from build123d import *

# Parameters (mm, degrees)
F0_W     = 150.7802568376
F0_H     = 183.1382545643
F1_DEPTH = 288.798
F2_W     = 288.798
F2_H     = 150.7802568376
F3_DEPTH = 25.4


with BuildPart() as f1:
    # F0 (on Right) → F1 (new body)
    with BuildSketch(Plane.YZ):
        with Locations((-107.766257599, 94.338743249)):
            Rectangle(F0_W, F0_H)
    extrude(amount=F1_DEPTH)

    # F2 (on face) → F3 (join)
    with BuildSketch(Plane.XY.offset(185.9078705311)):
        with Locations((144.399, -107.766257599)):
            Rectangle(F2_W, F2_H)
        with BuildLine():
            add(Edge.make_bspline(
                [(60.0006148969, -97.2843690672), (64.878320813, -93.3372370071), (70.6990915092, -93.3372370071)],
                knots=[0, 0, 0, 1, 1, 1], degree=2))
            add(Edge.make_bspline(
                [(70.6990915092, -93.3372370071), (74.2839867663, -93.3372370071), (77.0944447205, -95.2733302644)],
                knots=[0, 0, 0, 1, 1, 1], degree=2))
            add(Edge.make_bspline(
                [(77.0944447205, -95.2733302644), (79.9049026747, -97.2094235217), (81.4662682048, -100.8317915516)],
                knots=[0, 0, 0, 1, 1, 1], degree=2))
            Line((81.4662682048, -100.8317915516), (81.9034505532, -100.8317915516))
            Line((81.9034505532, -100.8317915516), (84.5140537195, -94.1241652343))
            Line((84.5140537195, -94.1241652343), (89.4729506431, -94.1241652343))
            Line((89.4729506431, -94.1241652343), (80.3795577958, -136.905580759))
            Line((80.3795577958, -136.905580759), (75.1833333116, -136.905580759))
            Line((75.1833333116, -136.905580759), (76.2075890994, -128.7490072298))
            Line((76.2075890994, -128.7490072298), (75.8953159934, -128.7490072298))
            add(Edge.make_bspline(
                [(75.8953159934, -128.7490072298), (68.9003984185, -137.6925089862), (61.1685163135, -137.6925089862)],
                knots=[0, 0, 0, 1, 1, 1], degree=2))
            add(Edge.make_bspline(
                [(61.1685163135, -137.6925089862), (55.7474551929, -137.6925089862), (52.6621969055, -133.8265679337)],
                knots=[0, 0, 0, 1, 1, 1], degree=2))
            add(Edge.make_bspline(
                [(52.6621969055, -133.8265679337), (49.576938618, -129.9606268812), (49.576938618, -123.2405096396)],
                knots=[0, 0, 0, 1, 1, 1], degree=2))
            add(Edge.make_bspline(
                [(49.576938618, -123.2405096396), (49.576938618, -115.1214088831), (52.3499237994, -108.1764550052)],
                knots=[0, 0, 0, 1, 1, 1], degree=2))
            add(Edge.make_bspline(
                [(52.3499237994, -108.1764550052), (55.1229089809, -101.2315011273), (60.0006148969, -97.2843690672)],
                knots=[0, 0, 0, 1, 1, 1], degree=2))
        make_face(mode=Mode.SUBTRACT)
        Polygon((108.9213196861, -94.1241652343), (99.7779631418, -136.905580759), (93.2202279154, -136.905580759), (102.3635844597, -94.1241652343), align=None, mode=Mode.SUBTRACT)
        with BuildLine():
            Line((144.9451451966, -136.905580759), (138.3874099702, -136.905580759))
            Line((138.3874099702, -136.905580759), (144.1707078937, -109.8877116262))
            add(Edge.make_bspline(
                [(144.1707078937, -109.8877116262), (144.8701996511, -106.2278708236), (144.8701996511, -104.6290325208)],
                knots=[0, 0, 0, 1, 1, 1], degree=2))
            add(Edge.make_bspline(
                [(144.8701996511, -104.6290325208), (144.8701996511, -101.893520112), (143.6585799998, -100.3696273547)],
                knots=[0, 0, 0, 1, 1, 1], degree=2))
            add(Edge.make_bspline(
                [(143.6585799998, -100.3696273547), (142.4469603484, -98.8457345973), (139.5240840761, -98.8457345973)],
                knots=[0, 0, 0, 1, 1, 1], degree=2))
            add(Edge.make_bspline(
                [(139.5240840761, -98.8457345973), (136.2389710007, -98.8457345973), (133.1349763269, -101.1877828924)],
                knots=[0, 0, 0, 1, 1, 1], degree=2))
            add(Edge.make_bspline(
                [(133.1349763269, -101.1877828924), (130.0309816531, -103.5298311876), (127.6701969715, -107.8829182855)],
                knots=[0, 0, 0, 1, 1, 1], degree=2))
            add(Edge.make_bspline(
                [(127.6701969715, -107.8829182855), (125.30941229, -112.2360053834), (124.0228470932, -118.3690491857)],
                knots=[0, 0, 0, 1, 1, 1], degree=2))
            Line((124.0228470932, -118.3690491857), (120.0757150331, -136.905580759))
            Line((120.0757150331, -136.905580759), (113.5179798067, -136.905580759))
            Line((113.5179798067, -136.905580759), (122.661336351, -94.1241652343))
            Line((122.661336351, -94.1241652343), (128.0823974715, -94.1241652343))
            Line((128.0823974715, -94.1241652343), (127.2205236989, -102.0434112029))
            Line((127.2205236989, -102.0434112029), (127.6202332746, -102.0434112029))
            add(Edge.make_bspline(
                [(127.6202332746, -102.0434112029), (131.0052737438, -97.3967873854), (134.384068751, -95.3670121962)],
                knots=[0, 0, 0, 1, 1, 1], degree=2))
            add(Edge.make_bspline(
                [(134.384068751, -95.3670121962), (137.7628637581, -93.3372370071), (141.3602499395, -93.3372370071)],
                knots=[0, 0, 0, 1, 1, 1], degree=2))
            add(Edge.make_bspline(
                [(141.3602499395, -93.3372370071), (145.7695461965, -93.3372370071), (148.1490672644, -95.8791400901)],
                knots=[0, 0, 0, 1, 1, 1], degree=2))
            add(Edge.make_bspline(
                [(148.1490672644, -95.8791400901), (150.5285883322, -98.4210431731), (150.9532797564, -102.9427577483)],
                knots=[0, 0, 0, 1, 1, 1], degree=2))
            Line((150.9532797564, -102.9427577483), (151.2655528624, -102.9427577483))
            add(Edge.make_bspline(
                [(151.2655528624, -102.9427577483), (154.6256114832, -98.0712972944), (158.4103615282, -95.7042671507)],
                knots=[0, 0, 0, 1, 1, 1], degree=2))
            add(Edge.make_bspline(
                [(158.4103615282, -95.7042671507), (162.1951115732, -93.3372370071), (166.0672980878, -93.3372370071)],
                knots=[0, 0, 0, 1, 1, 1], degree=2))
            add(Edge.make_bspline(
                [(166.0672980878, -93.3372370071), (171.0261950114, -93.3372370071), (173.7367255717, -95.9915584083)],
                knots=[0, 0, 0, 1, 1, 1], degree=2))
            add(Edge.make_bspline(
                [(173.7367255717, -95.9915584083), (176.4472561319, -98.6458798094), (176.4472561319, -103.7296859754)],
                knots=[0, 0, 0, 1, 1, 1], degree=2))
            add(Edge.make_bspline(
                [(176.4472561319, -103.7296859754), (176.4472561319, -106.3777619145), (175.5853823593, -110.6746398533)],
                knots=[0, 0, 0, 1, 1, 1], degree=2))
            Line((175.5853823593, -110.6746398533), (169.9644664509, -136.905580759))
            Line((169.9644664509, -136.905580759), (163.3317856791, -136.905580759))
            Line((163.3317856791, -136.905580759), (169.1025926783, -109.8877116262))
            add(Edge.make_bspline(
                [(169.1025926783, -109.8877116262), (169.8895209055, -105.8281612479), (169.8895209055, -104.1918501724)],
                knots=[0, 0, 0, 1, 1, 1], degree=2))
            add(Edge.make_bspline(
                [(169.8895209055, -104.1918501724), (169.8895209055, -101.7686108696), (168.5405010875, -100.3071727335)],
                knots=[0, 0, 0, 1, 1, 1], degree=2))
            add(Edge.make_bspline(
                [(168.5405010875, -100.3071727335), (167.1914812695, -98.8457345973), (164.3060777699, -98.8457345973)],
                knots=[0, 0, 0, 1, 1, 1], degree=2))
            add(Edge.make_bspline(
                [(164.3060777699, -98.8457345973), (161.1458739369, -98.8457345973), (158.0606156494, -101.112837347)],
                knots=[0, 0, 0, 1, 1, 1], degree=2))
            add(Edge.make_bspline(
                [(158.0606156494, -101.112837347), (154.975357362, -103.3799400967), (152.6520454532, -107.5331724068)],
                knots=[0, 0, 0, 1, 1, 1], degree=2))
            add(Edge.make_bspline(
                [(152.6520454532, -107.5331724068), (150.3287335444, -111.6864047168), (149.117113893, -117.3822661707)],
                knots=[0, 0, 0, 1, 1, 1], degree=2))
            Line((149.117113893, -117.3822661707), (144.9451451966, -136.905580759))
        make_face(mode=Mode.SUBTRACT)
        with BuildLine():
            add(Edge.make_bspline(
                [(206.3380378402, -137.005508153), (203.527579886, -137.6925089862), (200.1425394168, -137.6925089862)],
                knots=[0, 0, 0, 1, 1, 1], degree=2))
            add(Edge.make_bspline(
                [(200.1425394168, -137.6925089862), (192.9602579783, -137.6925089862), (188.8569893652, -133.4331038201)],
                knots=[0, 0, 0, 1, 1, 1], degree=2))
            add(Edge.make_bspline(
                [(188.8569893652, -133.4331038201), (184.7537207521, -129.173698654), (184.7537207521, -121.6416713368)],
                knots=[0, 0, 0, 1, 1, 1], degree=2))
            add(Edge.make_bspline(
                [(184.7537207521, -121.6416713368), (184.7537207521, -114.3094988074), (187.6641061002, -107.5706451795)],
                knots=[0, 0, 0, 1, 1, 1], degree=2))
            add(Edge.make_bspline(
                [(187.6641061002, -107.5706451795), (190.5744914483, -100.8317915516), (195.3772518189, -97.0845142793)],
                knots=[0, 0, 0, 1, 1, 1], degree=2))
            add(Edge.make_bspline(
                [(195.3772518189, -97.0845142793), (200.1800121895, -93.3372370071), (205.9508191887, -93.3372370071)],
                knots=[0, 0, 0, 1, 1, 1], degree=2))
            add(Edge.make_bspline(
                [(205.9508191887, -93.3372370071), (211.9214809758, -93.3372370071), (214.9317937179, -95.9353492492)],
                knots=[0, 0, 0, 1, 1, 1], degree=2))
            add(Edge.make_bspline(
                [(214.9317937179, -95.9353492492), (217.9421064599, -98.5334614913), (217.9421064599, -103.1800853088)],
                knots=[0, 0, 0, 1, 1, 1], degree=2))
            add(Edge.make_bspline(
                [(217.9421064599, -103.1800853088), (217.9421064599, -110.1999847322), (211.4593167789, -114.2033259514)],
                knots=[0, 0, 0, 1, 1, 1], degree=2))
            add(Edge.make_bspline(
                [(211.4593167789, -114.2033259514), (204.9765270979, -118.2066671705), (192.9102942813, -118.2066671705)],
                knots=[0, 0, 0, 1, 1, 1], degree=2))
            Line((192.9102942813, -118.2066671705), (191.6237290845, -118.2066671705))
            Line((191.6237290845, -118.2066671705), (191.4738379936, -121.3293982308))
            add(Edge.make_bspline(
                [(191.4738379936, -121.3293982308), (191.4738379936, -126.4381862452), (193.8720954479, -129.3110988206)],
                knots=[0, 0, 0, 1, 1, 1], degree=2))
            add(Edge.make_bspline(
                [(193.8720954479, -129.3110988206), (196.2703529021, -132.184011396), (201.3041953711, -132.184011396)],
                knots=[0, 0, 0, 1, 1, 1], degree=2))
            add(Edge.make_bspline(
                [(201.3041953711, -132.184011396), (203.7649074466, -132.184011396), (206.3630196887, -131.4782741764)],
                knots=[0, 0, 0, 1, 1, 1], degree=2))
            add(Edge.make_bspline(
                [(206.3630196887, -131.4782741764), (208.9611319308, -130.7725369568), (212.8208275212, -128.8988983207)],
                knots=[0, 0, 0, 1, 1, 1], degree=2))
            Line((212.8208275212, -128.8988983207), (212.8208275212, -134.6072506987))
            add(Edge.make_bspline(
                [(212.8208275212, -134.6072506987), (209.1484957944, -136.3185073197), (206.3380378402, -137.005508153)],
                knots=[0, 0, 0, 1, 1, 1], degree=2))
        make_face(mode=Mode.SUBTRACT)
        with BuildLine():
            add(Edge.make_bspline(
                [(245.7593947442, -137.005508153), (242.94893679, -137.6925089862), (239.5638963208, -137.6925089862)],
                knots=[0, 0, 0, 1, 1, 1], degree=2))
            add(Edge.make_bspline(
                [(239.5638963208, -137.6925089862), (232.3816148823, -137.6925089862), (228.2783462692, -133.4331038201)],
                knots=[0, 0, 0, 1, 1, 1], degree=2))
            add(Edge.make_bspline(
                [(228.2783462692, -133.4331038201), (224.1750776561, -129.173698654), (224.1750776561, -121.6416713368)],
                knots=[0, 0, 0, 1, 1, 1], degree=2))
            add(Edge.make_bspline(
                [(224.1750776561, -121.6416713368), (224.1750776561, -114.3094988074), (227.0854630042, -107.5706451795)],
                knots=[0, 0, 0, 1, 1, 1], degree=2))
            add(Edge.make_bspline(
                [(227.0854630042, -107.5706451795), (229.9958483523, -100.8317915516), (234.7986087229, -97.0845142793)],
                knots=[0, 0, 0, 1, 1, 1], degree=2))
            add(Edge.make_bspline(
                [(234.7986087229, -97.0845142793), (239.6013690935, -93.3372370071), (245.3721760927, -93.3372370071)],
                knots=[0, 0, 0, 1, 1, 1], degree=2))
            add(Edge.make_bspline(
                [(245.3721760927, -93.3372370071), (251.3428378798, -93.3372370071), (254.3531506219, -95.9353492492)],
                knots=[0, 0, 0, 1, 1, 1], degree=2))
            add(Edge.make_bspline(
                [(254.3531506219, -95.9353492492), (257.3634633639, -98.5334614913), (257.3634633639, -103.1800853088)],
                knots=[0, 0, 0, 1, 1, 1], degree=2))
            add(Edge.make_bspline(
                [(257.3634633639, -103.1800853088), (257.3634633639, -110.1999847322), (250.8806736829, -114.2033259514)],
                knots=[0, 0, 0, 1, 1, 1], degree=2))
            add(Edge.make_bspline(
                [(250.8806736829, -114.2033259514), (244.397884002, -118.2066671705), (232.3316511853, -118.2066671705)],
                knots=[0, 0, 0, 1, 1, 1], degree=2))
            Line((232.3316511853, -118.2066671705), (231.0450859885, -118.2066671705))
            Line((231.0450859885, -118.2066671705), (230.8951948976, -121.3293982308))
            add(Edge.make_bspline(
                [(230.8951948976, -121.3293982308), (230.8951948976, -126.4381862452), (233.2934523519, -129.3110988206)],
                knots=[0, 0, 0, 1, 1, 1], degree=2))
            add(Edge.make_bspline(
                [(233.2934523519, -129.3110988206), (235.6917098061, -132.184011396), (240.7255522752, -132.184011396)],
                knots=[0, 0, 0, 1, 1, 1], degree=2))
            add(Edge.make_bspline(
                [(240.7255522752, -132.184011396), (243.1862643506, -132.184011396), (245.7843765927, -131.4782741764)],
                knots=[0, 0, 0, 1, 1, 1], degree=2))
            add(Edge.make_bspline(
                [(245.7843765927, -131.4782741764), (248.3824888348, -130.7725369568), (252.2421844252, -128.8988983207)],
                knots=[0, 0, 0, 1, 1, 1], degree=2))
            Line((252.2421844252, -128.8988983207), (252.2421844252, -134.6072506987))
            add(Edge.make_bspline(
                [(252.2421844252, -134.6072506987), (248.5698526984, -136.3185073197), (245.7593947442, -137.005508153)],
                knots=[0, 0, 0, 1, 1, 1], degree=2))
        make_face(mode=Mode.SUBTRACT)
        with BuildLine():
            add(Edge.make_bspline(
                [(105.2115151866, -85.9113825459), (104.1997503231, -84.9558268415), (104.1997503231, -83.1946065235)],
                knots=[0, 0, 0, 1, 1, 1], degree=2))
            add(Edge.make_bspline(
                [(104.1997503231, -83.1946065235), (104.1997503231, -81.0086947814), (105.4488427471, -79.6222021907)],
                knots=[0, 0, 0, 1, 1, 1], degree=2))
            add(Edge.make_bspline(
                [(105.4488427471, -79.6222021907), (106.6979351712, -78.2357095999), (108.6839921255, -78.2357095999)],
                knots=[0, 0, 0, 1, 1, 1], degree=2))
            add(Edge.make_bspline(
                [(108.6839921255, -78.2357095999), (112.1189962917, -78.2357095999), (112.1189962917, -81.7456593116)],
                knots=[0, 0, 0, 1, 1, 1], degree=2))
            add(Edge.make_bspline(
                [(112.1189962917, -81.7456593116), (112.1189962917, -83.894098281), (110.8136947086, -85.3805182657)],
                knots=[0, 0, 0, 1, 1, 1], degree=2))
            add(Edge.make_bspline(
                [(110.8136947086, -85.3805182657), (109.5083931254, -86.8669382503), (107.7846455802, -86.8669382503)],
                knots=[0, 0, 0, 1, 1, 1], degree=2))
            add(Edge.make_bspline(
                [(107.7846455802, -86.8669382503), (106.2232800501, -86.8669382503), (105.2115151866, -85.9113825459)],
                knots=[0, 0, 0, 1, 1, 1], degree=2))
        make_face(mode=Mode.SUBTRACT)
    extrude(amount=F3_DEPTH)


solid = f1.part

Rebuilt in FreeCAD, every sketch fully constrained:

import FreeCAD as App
import Part
import Sketcher

V = App.Vector
Q = App.Units.Quantity

doc = App.newDocument("Part")
body = doc.addObject("PartDesign::Body", "Body")

# Sketch on YZ plane
sketch1 = body.newObject("Sketcher::SketchObject", "Sketch")
sketch1.AttachmentSupport = (doc.getObject("YZ_Plane"), [""])
sketch1.MapMode = "FlatFace"
sketch1.addGeometry([
    Part.LineSegment(V(-183, 186, 0), V(-183, 3, 0)),
    Part.LineSegment(V(-183, 3, 0), V(-32, 3, 0)),
    Part.LineSegment(V(-32, 3, 0), V(-32, 186, 0)),
    Part.LineSegment(V(-32, 186, 0), V(-183, 186, 0)),
], False)
sketch1.addConstraint([
    Sketcher.Constraint("Coincident", 0, 2, 1, 1),
    Sketcher.Constraint("Coincident", 1, 2, 2, 1),
    Sketcher.Constraint("Coincident", 2, 2, 3, 1),
    Sketcher.Constraint("Coincident", 3, 2, 0, 1),
    Sketcher.Constraint("Vertical", 0),
    Sketcher.Constraint("Horizontal", 1),
    Sketcher.Constraint("Vertical", 2),
    Sketcher.Constraint("Horizontal", 3),
    Sketcher.Constraint("DistanceX", 1, 1, 1, 2, Q("150.780257 mm")),
    Sketcher.Constraint("DistanceY", 0, 2, 0, 1, Q("183.138255 mm")),
    Sketcher.Constraint("DistanceX", 1, 2, -1, 1, Q("32.376129 mm")),
    Sketcher.Constraint("DistanceY", -1, 1, 2, 2, Q("185.907871 mm")),
])
pad1 = body.newObject("PartDesign::Pad", "Pad")
pad1.Profile = sketch1
pad1.Length = Q("11.37 in")

# Sketch on XY plane
sketch2 = body.newObject("Sketcher::SketchObject", "Sketch001")
sketch2.AttachmentSupport = (doc.getObject("XY_Plane"), [""])
sketch2.MapMode = "FlatFace"
sketch2.AttachmentOffset = App.Placement(V(0, 0, 185.907871), App.Rotation())
sketch2.addGeometry([
    Part.LineSegment(V(0, -32.376129, 0), V(0, -183.156386, 0)),  # 0
    Part.LineSegment(V(0, -183.156386, 0), V(288.798, -183.156386, 0)),  # 1
    Part.LineSegment(V(288.798, -183.156386, 0), V(288.798, -32.376129, 0)),  # 2
    Part.LineSegment(V(288.798, -32.376129, 0), V(0, -32.376129, 0)),  # 3
    Part.BSplineCurve([V(52.349924, -108.176455, 0), V(55.122909, -101.231501, 0), V(60.000615, -97.284369, 0)], [3, 3], [0, 1], False, 2, [1, 1, 1], False),  # 4
    Part.BSplineCurve([V(60.000615, -97.284369, 0), V(64.878321, -93.337237, 0), V(74.283987, -93.337237, 0), V(79.904903, -97.209424, 0), V(81.466268, -100.831792, 0)], [3, 1, 1, 3], [0, 1, 1.615879828, 2.231759657], False, 2, [1, 1, 1, 1, 1], False),  # 5
    Part.LineSegment(V(81.466268, -100.831792, 0), V(81.903451, -100.831792, 0)),  # 6
    Part.LineSegment(V(81.903451, -100.831792, 0), V(84.514054, -94.124165, 0)),  # 7
    Part.LineSegment(V(84.514054, -94.124165, 0), V(89.472951, -94.124165, 0)),  # 8
    Part.LineSegment(V(89.472951, -94.124165, 0), V(80.379558, -136.905581, 0)),  # 9
    Part.LineSegment(V(80.379558, -136.905581, 0), V(75.183333, -136.905581, 0)),  # 10
    Part.LineSegment(V(75.183333, -136.905581, 0), V(76.207589, -128.749007, 0)),  # 11
    Part.LineSegment(V(76.207589, -128.749007, 0), V(75.895316, -128.749007, 0)),  # 12
    Part.BSplineCurve([V(75.895316, -128.749007, 0), V(68.900398, -137.692509, 0), V(55.747455, -137.692509, 0), V(52.662197, -133.826568, 0)], [3, 1, 3], [0, 1, 1.701130856], False, 2, [1, 1, 1, 1], False),  # 13
    Part.BSplineCurve([V(52.662197, -133.826568, 0), V(49.576939, -129.960627, 0), V(49.576939, -115.121409, 0), V(52.349924, -108.176455, 0)], [3, 1, 3], [0, 1, 2.208178439], False, 2, [1, 1, 1, 1], False),  # 14
    Part.LineSegment(V(102.363584, -94.124165, 0), V(108.92132, -94.124165, 0)),  # 15
    Part.LineSegment(V(108.92132, -94.124165, 0), V(99.777963, -136.905581, 0)),  # 16
    Part.LineSegment(V(99.777963, -136.905581, 0), V(93.220228, -136.905581, 0)),  # 17
    Part.LineSegment(V(93.220228, -136.905581, 0), V(102.363584, -94.124165, 0)),  # 18
    Part.LineSegment(V(149.117114, -117.382266, 0), V(144.945145, -136.905581, 0)),  # 19
    Part.LineSegment(V(144.945145, -136.905581, 0), V(138.38741, -136.905581, 0)),  # 20
    Part.LineSegment(V(138.38741, -136.905581, 0), V(144.170708, -109.887712, 0)),  # 21
    Part.BSplineCurve([V(144.170708, -109.887712, 0), V(144.8702, -106.227871, 0), V(144.8702, -101.89352, 0), V(143.65858, -100.369627, 0)], [3, 1, 3], [0, 1, 2.7109375], False, 2, [1, 1, 1, 1], False),  # 22
    Part.BSplineCurve([V(143.65858, -100.369627, 0), V(142.44696, -98.845735, 0), V(136.238971, -98.845735, 0), V(133.134976, -101.187783, 0)], [3, 1, 3], [0, 1, 2.123931624], False, 2, [1, 1, 1, 1], False),  # 23
    Part.BSplineCurve([V(133.134976, -101.187783, 0), V(130.030982, -103.529831, 0), V(127.670197, -107.882918, 0)], [3, 3], [0, 1], False, 2, [1, 1, 1], False),  # 24
    Part.BSplineCurve([V(127.670197, -107.882918, 0), V(125.309412, -112.236005, 0), V(124.022847, -118.369049, 0)], [3, 3], [0, 1], False, 2, [1, 1, 1], False),  # 25
    Part.LineSegment(V(124.022847, -118.369049, 0), V(120.075715, -136.905581, 0)),  # 26
    Part.LineSegment(V(120.075715, -136.905581, 0), V(113.51798, -136.905581, 0)),  # 27
    Part.LineSegment(V(113.51798, -136.905581, 0), V(122.661336, -94.124165, 0)),  # 28
    Part.LineSegment(V(122.661336, -94.124165, 0), V(128.082397, -94.124165, 0)),  # 29
    Part.LineSegment(V(128.082397, -94.124165, 0), V(127.220524, -102.043411, 0)),  # 30
    Part.LineSegment(V(127.220524, -102.043411, 0), V(127.620233, -102.043411, 0)),  # 31
    Part.BSplineCurve([V(127.620233, -102.043411, 0), V(131.005274, -97.396787, 0), V(134.384069, -95.367012, 0)], [3, 3], [0, 1], False, 2, [1, 1, 1], False),  # 32
    Part.BSplineCurve([V(134.384069, -95.367012, 0), V(137.762864, -93.337237, 0), V(145.769546, -93.337237, 0), V(148.149067, -95.87914, 0)], [3, 1, 3], [0, 1, 2.225694444], False, 2, [1, 1, 1, 1], False),  # 33
    Part.BSplineCurve([V(148.149067, -95.87914, 0), V(150.528588, -98.421043, 0), V(150.95328, -102.942758, 0)], [3, 3], [0, 1], False, 2, [1, 1, 1], False),  # 34
    Part.LineSegment(V(150.95328, -102.942758, 0), V(151.265553, -102.942758, 0)),  # 35
    Part.BSplineCurve([V(151.265553, -102.942758, 0), V(154.625611, -98.071297, 0), V(158.410362, -95.704267, 0)], [3, 3], [0, 1], False, 2, [1, 1, 1], False),  # 36
    Part.BSplineCurve([V(158.410362, -95.704267, 0), V(162.195112, -93.337237, 0), V(171.026195, -93.337237, 0), V(176.447256, -98.64588, 0), V(176.447256, -106.377762, 0), V(175.585382, -110.67464, 0)], [3, 1, 1, 1, 3], [0, 1, 2.280645161, 3.561290323, 4.228358564], False, 2, [1, 1, 1, 1, 1, 1], False),  # 37
    Part.LineSegment(V(175.585382, -110.67464, 0), V(169.964466, -136.905581, 0)),  # 38
    Part.LineSegment(V(169.964466, -136.905581, 0), V(163.331786, -136.905581, 0)),  # 39
    Part.LineSegment(V(163.331786, -136.905581, 0), V(169.102593, -109.887712, 0)),  # 40
    Part.BSplineCurve([V(169.102593, -109.887712, 0), V(169.889521, -105.828161, 0), V(169.889521, -101.768611, 0), V(168.540501, -100.307173, 0)], [3, 1, 3], [0, 1, 2.480916031], False, 2, [1, 1, 1, 1], False),  # 41
    Part.BSplineCurve([V(168.540501, -100.307173, 0), V(167.191481, -98.845735, 0), V(161.145874, -98.845735, 0), V(158.060616, -101.112837, 0)], [3, 1, 3], [0, 1, 2.095238095], False, 2, [1, 1, 1, 1], False),  # 42
    Part.BSplineCurve([V(158.060616, -101.112837, 0), V(154.975357, -103.37994, 0), V(152.652045, -107.533172, 0)], [3, 3], [0, 1], False, 2, [1, 1, 1], False),  # 43
    Part.BSplineCurve([V(152.652045, -107.533172, 0), V(150.328734, -111.686405, 0), V(149.117114, -117.382266, 0)], [3, 3], [0, 1], False, 2, [1, 1, 1], False),  # 44
    Part.BSplineCurve([V(212.820828, -134.607251, 0), V(209.148496, -136.318507, 0), V(206.338038, -137.005508, 0)], [3, 3], [0, 1], False, 2, [1, 1, 1], False),  # 45
    Part.BSplineCurve([V(206.338038, -137.005508, 0), V(203.52758, -137.692509, 0), V(192.960258, -137.692509, 0), V(184.753721, -129.173699, 0), V(184.753721, -114.309499, 0), V(190.574491, -100.831792, 0), V(195.377252, -97.084514, 0)], [3, 1, 1, 1, 1, 3], [0, 1, 3.121771218, 5.243542436, 7.309014583, 9.37448673], False, 2, [1, 1, 1, 1, 1, 1, 1], False),  # 46
    Part.BSplineCurve([V(195.377252, -97.084514, 0), V(200.180012, -93.337237, 0), V(211.921481, -93.337237, 0), V(214.931794, -95.935349, 0)], [3, 1, 3], [0, 1, 2.034632035], False, 2, [1, 1, 1, 1], False),  # 47
    Part.BSplineCurve([V(214.931794, -95.935349, 0), V(217.942106, -98.533461, 0), V(217.942106, -110.199985, 0), V(211.459317, -114.203326, 0)], [3, 1, 3], [0, 1, 2.510752688], False, 2, [1, 1, 1, 1], False),  # 48
    Part.BSplineCurve([V(211.459317, -114.203326, 0), V(204.976527, -118.206667, 0), V(192.910294, -118.206667, 0)], [3, 3], [0, 1], False, 2, [1, 1, 1], False),  # 49
    Part.LineSegment(V(192.910294, -118.206667, 0), V(191.623729, -118.206667, 0)),  # 50
    Part.LineSegment(V(191.623729, -118.206667, 0), V(191.473838, -121.329398, 0)),  # 51
    Part.BSplineCurve([V(191.473838, -121.329398, 0), V(191.473838, -126.438186, 0), V(193.872095, -129.311099, 0)], [3, 3], [0, 1], False, 2, [1, 1, 1], False),  # 52
    Part.BSplineCurve([V(193.872095, -129.311099, 0), V(196.270353, -132.184011, 0), V(203.764907, -132.184011, 0), V(208.961132, -130.772537, 0), V(212.820828, -128.898898, 0)], [3, 1, 1, 3], [0, 1, 1.488833747, 1.977667494], False, 2, [1, 1, 1, 1, 1], False),  # 53
    Part.LineSegment(V(212.820828, -128.898898, 0), V(212.820828, -134.607251, 0)),  # 54
    Part.BSplineCurve([V(252.242184, -134.607251, 0), V(248.569853, -136.318507, 0), V(245.759395, -137.005508, 0)], [3, 3], [0, 1], False, 2, [1, 1, 1], False),  # 55
    Part.BSplineCurve([V(245.759395, -137.005508, 0), V(242.948937, -137.692509, 0), V(232.381615, -137.692509, 0), V(224.175078, -129.173699, 0), V(224.175078, -114.309499, 0), V(229.995848, -100.831792, 0), V(234.798609, -97.084514, 0)], [3, 1, 1, 1, 1, 3], [0, 1, 3.121771218, 5.243542436, 7.309014583, 9.37448673], False, 2, [1, 1, 1, 1, 1, 1, 1], False),  # 56
    Part.BSplineCurve([V(234.798609, -97.084514, 0), V(239.601369, -93.337237, 0), V(251.342838, -93.337237, 0), V(254.353151, -95.935349, 0)], [3, 1, 3], [0, 1, 2.034632035], False, 2, [1, 1, 1, 1], False),  # 57
    Part.BSplineCurve([V(254.353151, -95.935349, 0), V(257.363463, -98.533461, 0), V(257.363463, -110.199985, 0), V(250.880674, -114.203326, 0)], [3, 1, 3], [0, 1, 2.510752688], False, 2, [1, 1, 1, 1], False),  # 58
    Part.BSplineCurve([V(250.880674, -114.203326, 0), V(244.397884, -118.206667, 0), V(232.331651, -118.206667, 0)], [3, 3], [0, 1], False, 2, [1, 1, 1], False),  # 59
    Part.LineSegment(V(232.331651, -118.206667, 0), V(231.045086, -118.206667, 0)),  # 60
    Part.LineSegment(V(231.045086, -118.206667, 0), V(230.895195, -121.329398, 0)),  # 61
    Part.BSplineCurve([V(230.895195, -121.329398, 0), V(230.895195, -126.438186, 0), V(233.293452, -129.311099, 0)], [3, 3], [0, 1], False, 2, [1, 1, 1], False),  # 62
    Part.BSplineCurve([V(233.293452, -129.311099, 0), V(235.69171, -132.184011, 0), V(243.186264, -132.184011, 0), V(248.382489, -130.772537, 0), V(252.242184, -128.898898, 0)], [3, 1, 1, 3], [0, 1, 1.488833747, 1.977667494], False, 2, [1, 1, 1, 1, 1], False),  # 63
    Part.LineSegment(V(252.242184, -128.898898, 0), V(252.242184, -134.607251, 0)),  # 64
    Part.BSplineCurve([V(110.813695, -85.380518, 0), V(109.508393, -86.866938, 0), V(106.22328, -86.866938, 0), V(104.19975, -84.955827, 0), V(104.19975, -81.008695, 0), V(105.448843, -79.622202, 0)], [3, 1, 1, 1, 3], [0, 1, 1.905797101, 2.811594203, 3.935810464], False, 2, [1, 1, 1, 1, 1, 1], False),  # 65
    Part.BSplineCurve([V(105.448843, -79.622202, 0), V(106.697935, -78.23571, 0), V(112.118996, -78.23571, 0), V(112.118996, -83.894098, 0), V(110.813695, -85.380518, 0)], [3, 1, 1, 3], [0, 1, 2.729559748, 3.788222655], False, 2, [1, 1, 1, 1, 1], False),  # 66
], False)
sketch2.addConstraint([
    Sketcher.Constraint("Block", 4),
    Sketcher.Constraint("Block", 5),
    Sketcher.Constraint("Block", 13),
    Sketcher.Constraint("Block", 14),
    Sketcher.Constraint("Block", 22),
    Sketcher.Constraint("Block", 23),
    Sketcher.Constraint("Block", 24),
    Sketcher.Constraint("Block", 25),
    Sketcher.Constraint("Block", 32),
    Sketcher.Constraint("Block", 33),
    Sketcher.Constraint("Block", 34),
    Sketcher.Constraint("Block", 36),
    Sketcher.Constraint("Block", 37),
    Sketcher.Constraint("Block", 41),
    Sketcher.Constraint("Block", 42),
    Sketcher.Constraint("Block", 43),
    Sketcher.Constraint("Block", 44),
    Sketcher.Constraint("Block", 45),
    Sketcher.Constraint("Block", 46),
    Sketcher.Constraint("Block", 47),
    Sketcher.Constraint("Block", 48),
    Sketcher.Constraint("Block", 49),
    Sketcher.Constraint("Block", 52),
    Sketcher.Constraint("Block", 53),
    Sketcher.Constraint("Block", 55),
    Sketcher.Constraint("Block", 56),
    Sketcher.Constraint("Block", 57),
    Sketcher.Constraint("Block", 58),
    Sketcher.Constraint("Block", 59),
    Sketcher.Constraint("Block", 62),
    Sketcher.Constraint("Block", 63),
    Sketcher.Constraint("Block", 65),
    Sketcher.Constraint("Block", 66),
    Sketcher.Constraint("Coincident", 0, 2, 1, 1),
    Sketcher.Constraint("Coincident", 1, 2, 2, 1),
    Sketcher.Constraint("Coincident", 2, 2, 3, 1),
    Sketcher.Constraint("Coincident", 3, 2, 0, 1),
    Sketcher.Constraint("Coincident", 5, 2, 6, 1),
    Sketcher.Constraint("Coincident", 6, 2, 7, 1),
    Sketcher.Constraint("Coincident", 7, 2, 8, 1),
    Sketcher.Constraint("Coincident", 8, 2, 9, 1),
    Sketcher.Constraint("Coincident", 9, 2, 10, 1),
    Sketcher.Constraint("Coincident", 10, 2, 11, 1),
    Sketcher.Constraint("Coincident", 11, 2, 12, 1),
    Sketcher.Constraint("Coincident", 12, 2, 13, 1),
    Sketcher.Constraint("Coincident", 15, 2, 16, 1),
    Sketcher.Constraint("Coincident", 16, 2, 17, 1),
    Sketcher.Constraint("Coincident", 17, 2, 18, 1),
    Sketcher.Constraint("Coincident", 18, 2, 15, 1),
    Sketcher.Constraint("Coincident", 19, 2, 20, 1),
    Sketcher.Constraint("Coincident", 20, 2, 21, 1),
    Sketcher.Constraint("Coincident", 21, 2, 22, 1),
    Sketcher.Constraint("Coincident", 25, 2, 26, 1),
    Sketcher.Constraint("Coincident", 26, 2, 27, 1),
    Sketcher.Constraint("Coincident", 27, 2, 28, 1),
    Sketcher.Constraint("Coincident", 28, 2, 29, 1),
    Sketcher.Constraint("Coincident", 29, 2, 30, 1),
    Sketcher.Constraint("Coincident", 30, 2, 31, 1),
    Sketcher.Constraint("Coincident", 31, 2, 32, 1),
    Sketcher.Constraint("Coincident", 34, 2, 35, 1),
    Sketcher.Constraint("Coincident", 35, 2, 36, 1),
    Sketcher.Constraint("Coincident", 37, 2, 38, 1),
    Sketcher.Constraint("Coincident", 38, 2, 39, 1),
    Sketcher.Constraint("Coincident", 39, 2, 40, 1),
    Sketcher.Constraint("Coincident", 40, 2, 41, 1),
    Sketcher.Constraint("Coincident", 44, 2, 19, 1),
    Sketcher.Constraint("Coincident", 49, 2, 50, 1),
    Sketcher.Constraint("Coincident", 50, 2, 51, 1),
    Sketcher.Constraint("Coincident", 51, 2, 52, 1),
    Sketcher.Constraint("Coincident", 53, 2, 54, 1),
    Sketcher.Constraint("Coincident", 54, 2, 45, 1),
    Sketcher.Constraint("Coincident", 59, 2, 60, 1),
    Sketcher.Constraint("Coincident", 60, 2, 61, 1),
    Sketcher.Constraint("Coincident", 61, 2, 62, 1),
    Sketcher.Constraint("Coincident", 63, 2, 64, 1),
    Sketcher.Constraint("Coincident", 64, 2, 55, 1),
    Sketcher.Constraint("Vertical", 0),
    Sketcher.Constraint("Horizontal", 1),
    Sketcher.Constraint("Vertical", 2),
    Sketcher.Constraint("Horizontal", 3),
    Sketcher.Constraint("Horizontal", 6),
    Sketcher.Constraint("Horizontal", 8),
    Sketcher.Constraint("Horizontal", 10),
    Sketcher.Constraint("Horizontal", 12),
    Sketcher.Constraint("Horizontal", 15),
    Sketcher.Constraint("Horizontal", 17),
    Sketcher.Constraint("Horizontal", 20),
    Sketcher.Constraint("Horizontal", 27),
    Sketcher.Constraint("Horizontal", 29),
    Sketcher.Constraint("Horizontal", 31),
    Sketcher.Constraint("Horizontal", 39),
    Sketcher.Constraint("Horizontal", 50),
    Sketcher.Constraint("Horizontal", 60),
    Sketcher.Constraint("PointOnObject", 0, 2, -2),
    Sketcher.Constraint("DistanceX", 1, 1, 1, 2, Q("11.37 in")),
    Sketcher.Constraint("DistanceX", 29, 1, 29, 2, Q("5.421061 mm")),
    Sketcher.Constraint("DistanceX", 31, 1, 31, 2, Q("0.39971 mm")),
    Sketcher.Constraint("DistanceX", 39, 2, 39, 1, Q("6.632681 mm")),
    Sketcher.Constraint("DistanceX", 6, 2, 8, 2, Q("7.5695 mm")),
    Sketcher.Constraint("DistanceX", 50, 2, 54, 2, Q("21.197098 mm")),
    Sketcher.Constraint("DistanceX", 60, 2, 64, 2, Q("21.197098 mm")),
    Sketcher.Constraint("Distance", 9, Q("43.737162 mm")),
    Sketcher.Constraint("Distance", 26, Q("18.95212 mm")),
    Sketcher.Constraint("DistanceX", 6, 1, 6, 2, Q("0.437182 mm")),
    Sketcher.Constraint("DistanceX", 8, 1, 8, 2, Q("4.958897 mm")),
    Sketcher.Constraint("DistanceX", 10, 2, 10, 1, Q("5.196224 mm")),
    Sketcher.Constraint("DistanceX", 12, 2, 12, 1, Q("0.312273 mm")),
    Sketcher.Constraint("DistanceX", 15, 1, 15, 2, Q("6.557735 mm")),
    Sketcher.Constraint("DistanceX", 17, 2, 17, 1, Q("6.557735 mm")),
    Sketcher.Constraint("DistanceX", 20, 2, 20, 1, Q("6.557735 mm")),
    Sketcher.Constraint("DistanceX", 27, 2, 27, 1, Q("6.557735 mm")),
    Sketcher.Constraint("DistanceY", 0, 2, 0, 1, Q("150.780257 mm")),
    Sketcher.Constraint("DistanceY", 2, 2, -1, 1, Q("32.376129 mm")),
    Sketcher.Constraint("DistanceY", 9, 2, -1, 1, Q("136.905581 mm")),
    Sketcher.Constraint("DistanceX", -1, 1, 15, 2, Q("108.92132 mm")),
    Sketcher.Constraint("DistanceY", 16, 2, -1, 1, Q("136.905581 mm")),
    Sketcher.Constraint("DistanceY", 19, 2, -1, 1, Q("136.905581 mm")),
    Sketcher.Constraint("DistanceX", -1, 1, 20, 2, Q("138.38741 mm")),
    Sketcher.Constraint("DistanceY", 26, 2, -1, 1, Q("136.905581 mm")),
    Sketcher.Constraint("DistanceY", 38, 2, -1, 1, Q("136.905581 mm")),
    Sketcher.Constraint("DistanceY", 0, 2, 7, 2, Q("89.032221 mm")),
    Sketcher.Constraint("DistanceY", 11, 2, 15, 2, Q("34.624842 mm")),
    Sketcher.Constraint("DistanceX", 10, 2, 16, 2, Q("24.59463 mm")),
    Sketcher.Constraint("DistanceX", 18, 2, 28, 2, Q("20.297752 mm")),
    Sketcher.Constraint("DistanceX", 19, 2, 38, 2, Q("25.019321 mm")),
    Sketcher.Constraint("Distance", 28, Q("43.747577 mm")),
])
pad2 = body.newObject("PartDesign::Pad", "Pad001")
pad2.Profile = sketch2
pad2.Length = Q("1 in")

doc.recompute()
